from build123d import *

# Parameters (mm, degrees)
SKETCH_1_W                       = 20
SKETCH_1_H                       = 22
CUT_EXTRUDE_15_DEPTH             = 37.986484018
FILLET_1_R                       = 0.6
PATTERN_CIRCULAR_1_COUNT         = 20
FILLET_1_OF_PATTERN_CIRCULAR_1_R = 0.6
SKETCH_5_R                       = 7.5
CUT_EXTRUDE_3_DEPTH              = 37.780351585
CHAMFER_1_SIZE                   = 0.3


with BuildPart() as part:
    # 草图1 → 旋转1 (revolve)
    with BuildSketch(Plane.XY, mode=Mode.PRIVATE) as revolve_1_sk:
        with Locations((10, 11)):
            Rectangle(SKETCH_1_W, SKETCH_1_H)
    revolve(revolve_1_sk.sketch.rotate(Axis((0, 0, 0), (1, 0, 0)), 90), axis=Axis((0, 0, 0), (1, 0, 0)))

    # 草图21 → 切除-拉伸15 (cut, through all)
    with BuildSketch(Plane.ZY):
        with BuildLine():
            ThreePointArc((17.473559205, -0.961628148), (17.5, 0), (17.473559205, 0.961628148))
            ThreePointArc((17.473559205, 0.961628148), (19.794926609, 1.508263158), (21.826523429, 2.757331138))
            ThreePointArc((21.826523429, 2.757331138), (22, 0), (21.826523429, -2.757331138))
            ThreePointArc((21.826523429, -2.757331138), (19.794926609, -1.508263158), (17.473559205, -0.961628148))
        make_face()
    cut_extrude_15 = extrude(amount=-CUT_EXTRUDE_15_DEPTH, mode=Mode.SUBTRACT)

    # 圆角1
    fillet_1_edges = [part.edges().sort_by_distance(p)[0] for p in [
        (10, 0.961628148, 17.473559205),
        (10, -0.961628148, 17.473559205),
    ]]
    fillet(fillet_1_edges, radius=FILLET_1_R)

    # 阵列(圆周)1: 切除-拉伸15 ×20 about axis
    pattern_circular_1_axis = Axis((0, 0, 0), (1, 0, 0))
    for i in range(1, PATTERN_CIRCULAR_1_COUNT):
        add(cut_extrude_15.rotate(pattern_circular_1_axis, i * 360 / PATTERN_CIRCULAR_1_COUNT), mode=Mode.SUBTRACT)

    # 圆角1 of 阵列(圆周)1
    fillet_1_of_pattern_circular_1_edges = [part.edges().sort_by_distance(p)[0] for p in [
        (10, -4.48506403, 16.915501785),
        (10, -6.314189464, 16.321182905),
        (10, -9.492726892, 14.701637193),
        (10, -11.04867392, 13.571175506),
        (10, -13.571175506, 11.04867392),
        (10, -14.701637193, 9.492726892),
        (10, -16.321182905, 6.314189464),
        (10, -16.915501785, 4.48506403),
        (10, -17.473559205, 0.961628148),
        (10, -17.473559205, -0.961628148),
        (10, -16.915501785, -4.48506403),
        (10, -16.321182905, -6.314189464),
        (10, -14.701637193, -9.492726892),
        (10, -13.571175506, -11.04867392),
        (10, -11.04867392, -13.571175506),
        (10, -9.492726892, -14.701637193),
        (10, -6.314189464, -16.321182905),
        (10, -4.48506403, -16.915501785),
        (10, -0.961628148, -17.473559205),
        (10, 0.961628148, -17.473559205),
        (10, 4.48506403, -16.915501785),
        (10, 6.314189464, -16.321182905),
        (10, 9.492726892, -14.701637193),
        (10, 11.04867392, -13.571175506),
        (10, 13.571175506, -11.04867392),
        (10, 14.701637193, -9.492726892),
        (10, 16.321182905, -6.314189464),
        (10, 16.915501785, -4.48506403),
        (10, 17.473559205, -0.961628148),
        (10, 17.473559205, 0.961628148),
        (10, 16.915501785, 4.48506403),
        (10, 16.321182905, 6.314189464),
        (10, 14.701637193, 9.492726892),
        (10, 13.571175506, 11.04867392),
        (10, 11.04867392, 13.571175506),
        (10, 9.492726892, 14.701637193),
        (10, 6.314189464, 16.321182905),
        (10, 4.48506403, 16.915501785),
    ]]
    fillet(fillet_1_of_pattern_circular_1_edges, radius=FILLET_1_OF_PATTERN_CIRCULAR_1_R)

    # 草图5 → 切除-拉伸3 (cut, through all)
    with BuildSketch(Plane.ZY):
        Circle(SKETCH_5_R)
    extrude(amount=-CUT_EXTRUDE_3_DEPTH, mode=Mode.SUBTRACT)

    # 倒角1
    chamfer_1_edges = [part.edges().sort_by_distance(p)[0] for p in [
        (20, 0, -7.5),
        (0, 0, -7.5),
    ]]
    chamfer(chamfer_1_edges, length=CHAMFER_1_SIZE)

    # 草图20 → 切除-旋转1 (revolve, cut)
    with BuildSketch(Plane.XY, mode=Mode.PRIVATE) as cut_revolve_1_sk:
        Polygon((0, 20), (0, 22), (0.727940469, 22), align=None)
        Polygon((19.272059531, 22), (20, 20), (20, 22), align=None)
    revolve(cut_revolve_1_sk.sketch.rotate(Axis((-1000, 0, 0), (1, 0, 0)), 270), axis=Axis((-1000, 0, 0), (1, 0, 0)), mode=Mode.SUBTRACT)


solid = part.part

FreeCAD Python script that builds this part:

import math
import FreeCAD as App
import Part
import Sketcher
from FreeCAD import Vector
Q = App.Units.Quantity


def edges_at(feature, points):
    """Names of the edges that pass closest to the given points."""
    edges = feature.Shape.Edges
    near = lambda p: min(range(len(edges)), key=lambda i: edges[i].distToShape(Part.Vertex(*p))[0])
    return sorted({f"Edge{near(p) + 1}" for p in points})

doc = App.newDocument("Part")
body = doc.addObject("PartDesign::Body", "Body")

sketch1 = body.newObject("Sketcher::SketchObject", "Sketch")
sketch1.AttachmentSupport = (doc.getObject("XY_Plane"), [""])
sketch1.MapMode = "FlatFace"
sketch1.addGeometry([
    Part.LineSegment(Vector(0, 22, 0), Vector(0, 0, 0)),
    Part.LineSegment(Vector(0, 0, 0), Vector(20, 0, 0)),
    Part.LineSegment(Vector(20, 0, 0), Vector(20, 22, 0)),
    Part.LineSegment(Vector(20, 22, 0), Vector(0, 22, 0)),
], False)
sketch1.addConstraint([
    Sketcher.Constraint("Coincident", 0, 2, 1, 1),
    Sketcher.Constraint("Coincident", 1, 2, 2, 1),
    Sketcher.Constraint("Coincident", 2, 2, 3, 1),
    Sketcher.Constraint("Coincident", 3, 2, 0, 1),
    Sketcher.Constraint("Vertical", 0),
    Sketcher.Constraint("Horizontal", 1),
    Sketcher.Constraint("Vertical", 2),
    Sketcher.Constraint("Horizontal", 3),
    Sketcher.Constraint("Coincident", 0, 2, -1, 1),
    Sketcher.Constraint("DistanceX", 1, 1, 1, 2, Q("20 mm")),
    Sketcher.Constraint("DistanceY", 0, 2, 0, 1, Q("22 mm")),
])
revolution = body.newObject("PartDesign::Revolution", "Revolution")
revolution.Profile = sketch1
revolution.ReferenceAxis = (sketch1, ["H_Axis"])
revolution.Angle = 360

sketch2 = body.newObject("Sketcher::SketchObject", "Sketch001")
sketch2.AttachmentSupport = (doc.getObject("YZ_Plane"), [""])
sketch2.MapMode = "FlatFace"
sketch2.addGeometry([
    Part.ArcOfCircle(Part.Circle(Vector(0, 0, 0), Vector(0, 0, 1), 17.5), math.radians(86.85), math.radians(93.15)),
    Part.ArcOfCircle(Part.Circle(Vector(-8.427681, 16.940499, 0), Vector(0, 0, 1), 7.485059), math.radians(4.083863), math.radians(40.750799)),
    Part.ArcOfCircle(Part.Circle(Vector(0, 0, 0), Vector(0, 0, 1), 22), math.radians(82.8), math.radians(97.2)),
    Part.ArcOfCircle(Part.Circle(Vector(8.427681, 16.940499, 0), Vector(0, 0, 1), 7.485059), math.radians(139.249201), math.radians(175.916137)),
], False)
sketch2.addConstraint([
    Sketcher.Constraint("Coincident", 0, 2, 1, 1),
    Sketcher.Constraint("Coincident", 1, 2, 2, 2),
    Sketcher.Constraint("Coincident", 2, 1, 3, 1),
    Sketcher.Constraint("Coincident", 3, 2, 0, 1),
    Sketcher.Constraint("Coincident", 0, 3, -1, 1),
    Sketcher.Constraint("Coincident", 2, 3, -1, 1),
    Sketcher.Constraint("Equal", 1, 3),
    Sketcher.Constraint("Symmetric", 1, 3, 3, 3, -2),
    Sketcher.Constraint("Radius", 2, Q("22 mm")),
    Sketcher.Constraint("Radius", 0, Q("17.5 mm")),
    Sketcher.Constraint("Radius", 1, Q("7.485059 mm")),
    Sketcher.Constraint("DistanceY", -1, 1, 1, 3, Q("16.940499 mm")),
    Sketcher.Constraint("DistanceX", 1, 3, -1, 1, Q("8.427681 mm")),
])
pocket1 = body.newObject("PartDesign::Pocket", "Pocket")
pocket1.Profile = sketch2
pocket1.Type = "ThroughAll"
pocket1.Reversed = True
doc.recompute()

fillet = body.newObject("PartDesign::Fillet", "Fillet")
fillet.Base = (pocket1, edges_at(pocket1, [(10, 0.962, 17.474), (10, -0.962, 17.474)]))
fillet.Radius = 0.6
doc.recompute()

polarpattern = body.newObject("PartDesign::PolarPattern", "PolarPattern")
polarpattern.Originals = [pocket1]
polarpattern.Axis = (doc.getObject("X_Axis"), [""])
polarpattern.Angle = 360
polarpattern.Occurrences = 20
body.Tip = polarpattern
doc.recompute()

fillet2 = body.newObject("PartDesign::Fillet", "Fillet001")
fillet2.Base = (polarpattern, edges_at(polarpattern, [
    (10, -4.485, 16.916),
    (10, -6.314, 16.321),
    (10, -9.493, 14.702),
    (10, -11.049, 13.571),
    (10, -13.571, 11.049),
    (10, -14.702, 9.493),
    (10, -16.321, 6.314),
    (10, -16.916, 4.485),
    (10, -17.474, 0.962),
    (10, -17.474, -0.962),
    (10, -16.916, -4.485),
    (10, -16.321, -6.314),
    (10, -14.702, -9.493),
    (10, -13.571, -11.049),
    (10, -11.049, -13.571),
    (10, -9.493, -14.702),
    (10, -6.314, -16.321),
    (10, -4.485, -16.916),
    (10, -0.962, -17.474),
    (10, 0.962, -17.474),
    (10, 4.485, -16.916),
    (10, 6.314, -16.321),
    (10, 9.493, -14.702),
    (10, 11.049, -13.571),
    (10, 13.571, -11.049),
    (10, 14.702, -9.493),
    (10, 16.321, -6.314),
    (10, 16.916, -4.485),
    (10, 17.474, -0.962),
    (10, 17.474, 0.962),
    (10, 16.916, 4.485),
    (10, 16.321, 6.314),
    (10, 14.702, 9.493),
    (10, 13.571, 11.049),
    (10, 11.049, 13.571),
    (10, 9.493, 14.702),
    (10, 6.314, 16.321),
    (10, 4.485, 16.916),
]))
fillet2.Radius = 0.6

sketch3 = body.newObject("Sketcher::SketchObject", "Sketch002")
sketch3.AttachmentSupport = (doc.getObject("YZ_Plane"), [""])
sketch3.MapMode = "FlatFace"
sketch3.addGeometry(Part.Circle(Vector(0, 0, 0), Vector(0, 0, 1), 7.5), False)
sketch3.addConstraint([
    Sketcher.Constraint("Coincident", 0, 3, -1, 1),
    Sketcher.Constraint("Diameter", 0, Q("15 mm")),
])
pocket2 = body.newObject("PartDesign::Pocket", "Pocket001")
pocket2.Profile = sketch3
pocket2.Type = "ThroughAll"
pocket2.Reversed = True
doc.recompute()

chamfer = body.newObject("PartDesign::Chamfer", "Chamfer")
chamfer.Base = (pocket2, edges_at(pocket2, [(20, 0, -7.5), (0, 0, -7.5)]))
chamfer.Size = 0.3

sketch4 = body.newObject("Sketcher::SketchObject", "Sketch003")
sketch4.AttachmentSupport = (doc.getObject("XY_Plane"), [""])
sketch4.MapMode = "FlatFace"
sketch4.addGeometry([
    Part.LineSegment(Vector(0, 22, 0), Vector(0, 20, 0)),
    Part.LineSegment(Vector(0, 20, 0), Vector(0.72794, 22, 0)),
    Part.LineSegment(Vector(0.72794, 22, 0), Vector(0, 22, 0)),
    Part.LineSegment(Vector(19.27206, 22, 0), Vector(20, 20, 0)),
    Part.LineSegment(Vector(20, 20, 0), Vector(20, 22, 0)),
    Part.LineSegment(Vector(20, 22, 0), Vector(19.27206, 22, 0)),
], False)
sketch4.addConstraint([
    Sketcher.Constraint("Coincident", 0, 2, 1, 1),
    Sketcher.Constraint("Coincident", 1, 2, 2, 1),
    Sketcher.Constraint("Coincident", 2, 2, 0, 1),
    Sketcher.Constraint("Coincident", 3, 2, 4, 1),
    Sketcher.Constraint("Coincident", 4, 2, 5, 1),
    Sketcher.Constraint("Coincident", 5, 2, 3, 1),
    Sketcher.Constraint("Vertical", 0),
    Sketcher.Constraint("Horizontal", 2),
    Sketcher.Constraint("Vertical", 4),
    Sketcher.Constraint("Horizontal", 5),
    Sketcher.Constraint("PointOnObject", 0, 2, -2),
    Sketcher.Constraint("Horizontal", 0, 2, 3, 2),
    Sketcher.Constraint("Horizontal", 2, 2, 4, 2),
    Sketcher.Constraint("Equal", 2, 5),
    Sketcher.Constraint("DistanceY", 0, 2, 0, 1, Q("2 mm")),
    Sketcher.Constraint("Angle", 1, Q("70 deg")),
    Sketcher.Constraint("DistanceY", -1, 1, 0, 2, Q("20 mm")),
    Sketcher.Constraint("DistanceX", -1, 1, 3, 2, Q("20 mm")),
])
groove = body.newObject("PartDesign::Groove", "Groove")
groove.Profile = sketch4
groove.ReferenceAxis = (sketch4, ["H_Axis"])
groove.Angle = 360

doc.recompute()
